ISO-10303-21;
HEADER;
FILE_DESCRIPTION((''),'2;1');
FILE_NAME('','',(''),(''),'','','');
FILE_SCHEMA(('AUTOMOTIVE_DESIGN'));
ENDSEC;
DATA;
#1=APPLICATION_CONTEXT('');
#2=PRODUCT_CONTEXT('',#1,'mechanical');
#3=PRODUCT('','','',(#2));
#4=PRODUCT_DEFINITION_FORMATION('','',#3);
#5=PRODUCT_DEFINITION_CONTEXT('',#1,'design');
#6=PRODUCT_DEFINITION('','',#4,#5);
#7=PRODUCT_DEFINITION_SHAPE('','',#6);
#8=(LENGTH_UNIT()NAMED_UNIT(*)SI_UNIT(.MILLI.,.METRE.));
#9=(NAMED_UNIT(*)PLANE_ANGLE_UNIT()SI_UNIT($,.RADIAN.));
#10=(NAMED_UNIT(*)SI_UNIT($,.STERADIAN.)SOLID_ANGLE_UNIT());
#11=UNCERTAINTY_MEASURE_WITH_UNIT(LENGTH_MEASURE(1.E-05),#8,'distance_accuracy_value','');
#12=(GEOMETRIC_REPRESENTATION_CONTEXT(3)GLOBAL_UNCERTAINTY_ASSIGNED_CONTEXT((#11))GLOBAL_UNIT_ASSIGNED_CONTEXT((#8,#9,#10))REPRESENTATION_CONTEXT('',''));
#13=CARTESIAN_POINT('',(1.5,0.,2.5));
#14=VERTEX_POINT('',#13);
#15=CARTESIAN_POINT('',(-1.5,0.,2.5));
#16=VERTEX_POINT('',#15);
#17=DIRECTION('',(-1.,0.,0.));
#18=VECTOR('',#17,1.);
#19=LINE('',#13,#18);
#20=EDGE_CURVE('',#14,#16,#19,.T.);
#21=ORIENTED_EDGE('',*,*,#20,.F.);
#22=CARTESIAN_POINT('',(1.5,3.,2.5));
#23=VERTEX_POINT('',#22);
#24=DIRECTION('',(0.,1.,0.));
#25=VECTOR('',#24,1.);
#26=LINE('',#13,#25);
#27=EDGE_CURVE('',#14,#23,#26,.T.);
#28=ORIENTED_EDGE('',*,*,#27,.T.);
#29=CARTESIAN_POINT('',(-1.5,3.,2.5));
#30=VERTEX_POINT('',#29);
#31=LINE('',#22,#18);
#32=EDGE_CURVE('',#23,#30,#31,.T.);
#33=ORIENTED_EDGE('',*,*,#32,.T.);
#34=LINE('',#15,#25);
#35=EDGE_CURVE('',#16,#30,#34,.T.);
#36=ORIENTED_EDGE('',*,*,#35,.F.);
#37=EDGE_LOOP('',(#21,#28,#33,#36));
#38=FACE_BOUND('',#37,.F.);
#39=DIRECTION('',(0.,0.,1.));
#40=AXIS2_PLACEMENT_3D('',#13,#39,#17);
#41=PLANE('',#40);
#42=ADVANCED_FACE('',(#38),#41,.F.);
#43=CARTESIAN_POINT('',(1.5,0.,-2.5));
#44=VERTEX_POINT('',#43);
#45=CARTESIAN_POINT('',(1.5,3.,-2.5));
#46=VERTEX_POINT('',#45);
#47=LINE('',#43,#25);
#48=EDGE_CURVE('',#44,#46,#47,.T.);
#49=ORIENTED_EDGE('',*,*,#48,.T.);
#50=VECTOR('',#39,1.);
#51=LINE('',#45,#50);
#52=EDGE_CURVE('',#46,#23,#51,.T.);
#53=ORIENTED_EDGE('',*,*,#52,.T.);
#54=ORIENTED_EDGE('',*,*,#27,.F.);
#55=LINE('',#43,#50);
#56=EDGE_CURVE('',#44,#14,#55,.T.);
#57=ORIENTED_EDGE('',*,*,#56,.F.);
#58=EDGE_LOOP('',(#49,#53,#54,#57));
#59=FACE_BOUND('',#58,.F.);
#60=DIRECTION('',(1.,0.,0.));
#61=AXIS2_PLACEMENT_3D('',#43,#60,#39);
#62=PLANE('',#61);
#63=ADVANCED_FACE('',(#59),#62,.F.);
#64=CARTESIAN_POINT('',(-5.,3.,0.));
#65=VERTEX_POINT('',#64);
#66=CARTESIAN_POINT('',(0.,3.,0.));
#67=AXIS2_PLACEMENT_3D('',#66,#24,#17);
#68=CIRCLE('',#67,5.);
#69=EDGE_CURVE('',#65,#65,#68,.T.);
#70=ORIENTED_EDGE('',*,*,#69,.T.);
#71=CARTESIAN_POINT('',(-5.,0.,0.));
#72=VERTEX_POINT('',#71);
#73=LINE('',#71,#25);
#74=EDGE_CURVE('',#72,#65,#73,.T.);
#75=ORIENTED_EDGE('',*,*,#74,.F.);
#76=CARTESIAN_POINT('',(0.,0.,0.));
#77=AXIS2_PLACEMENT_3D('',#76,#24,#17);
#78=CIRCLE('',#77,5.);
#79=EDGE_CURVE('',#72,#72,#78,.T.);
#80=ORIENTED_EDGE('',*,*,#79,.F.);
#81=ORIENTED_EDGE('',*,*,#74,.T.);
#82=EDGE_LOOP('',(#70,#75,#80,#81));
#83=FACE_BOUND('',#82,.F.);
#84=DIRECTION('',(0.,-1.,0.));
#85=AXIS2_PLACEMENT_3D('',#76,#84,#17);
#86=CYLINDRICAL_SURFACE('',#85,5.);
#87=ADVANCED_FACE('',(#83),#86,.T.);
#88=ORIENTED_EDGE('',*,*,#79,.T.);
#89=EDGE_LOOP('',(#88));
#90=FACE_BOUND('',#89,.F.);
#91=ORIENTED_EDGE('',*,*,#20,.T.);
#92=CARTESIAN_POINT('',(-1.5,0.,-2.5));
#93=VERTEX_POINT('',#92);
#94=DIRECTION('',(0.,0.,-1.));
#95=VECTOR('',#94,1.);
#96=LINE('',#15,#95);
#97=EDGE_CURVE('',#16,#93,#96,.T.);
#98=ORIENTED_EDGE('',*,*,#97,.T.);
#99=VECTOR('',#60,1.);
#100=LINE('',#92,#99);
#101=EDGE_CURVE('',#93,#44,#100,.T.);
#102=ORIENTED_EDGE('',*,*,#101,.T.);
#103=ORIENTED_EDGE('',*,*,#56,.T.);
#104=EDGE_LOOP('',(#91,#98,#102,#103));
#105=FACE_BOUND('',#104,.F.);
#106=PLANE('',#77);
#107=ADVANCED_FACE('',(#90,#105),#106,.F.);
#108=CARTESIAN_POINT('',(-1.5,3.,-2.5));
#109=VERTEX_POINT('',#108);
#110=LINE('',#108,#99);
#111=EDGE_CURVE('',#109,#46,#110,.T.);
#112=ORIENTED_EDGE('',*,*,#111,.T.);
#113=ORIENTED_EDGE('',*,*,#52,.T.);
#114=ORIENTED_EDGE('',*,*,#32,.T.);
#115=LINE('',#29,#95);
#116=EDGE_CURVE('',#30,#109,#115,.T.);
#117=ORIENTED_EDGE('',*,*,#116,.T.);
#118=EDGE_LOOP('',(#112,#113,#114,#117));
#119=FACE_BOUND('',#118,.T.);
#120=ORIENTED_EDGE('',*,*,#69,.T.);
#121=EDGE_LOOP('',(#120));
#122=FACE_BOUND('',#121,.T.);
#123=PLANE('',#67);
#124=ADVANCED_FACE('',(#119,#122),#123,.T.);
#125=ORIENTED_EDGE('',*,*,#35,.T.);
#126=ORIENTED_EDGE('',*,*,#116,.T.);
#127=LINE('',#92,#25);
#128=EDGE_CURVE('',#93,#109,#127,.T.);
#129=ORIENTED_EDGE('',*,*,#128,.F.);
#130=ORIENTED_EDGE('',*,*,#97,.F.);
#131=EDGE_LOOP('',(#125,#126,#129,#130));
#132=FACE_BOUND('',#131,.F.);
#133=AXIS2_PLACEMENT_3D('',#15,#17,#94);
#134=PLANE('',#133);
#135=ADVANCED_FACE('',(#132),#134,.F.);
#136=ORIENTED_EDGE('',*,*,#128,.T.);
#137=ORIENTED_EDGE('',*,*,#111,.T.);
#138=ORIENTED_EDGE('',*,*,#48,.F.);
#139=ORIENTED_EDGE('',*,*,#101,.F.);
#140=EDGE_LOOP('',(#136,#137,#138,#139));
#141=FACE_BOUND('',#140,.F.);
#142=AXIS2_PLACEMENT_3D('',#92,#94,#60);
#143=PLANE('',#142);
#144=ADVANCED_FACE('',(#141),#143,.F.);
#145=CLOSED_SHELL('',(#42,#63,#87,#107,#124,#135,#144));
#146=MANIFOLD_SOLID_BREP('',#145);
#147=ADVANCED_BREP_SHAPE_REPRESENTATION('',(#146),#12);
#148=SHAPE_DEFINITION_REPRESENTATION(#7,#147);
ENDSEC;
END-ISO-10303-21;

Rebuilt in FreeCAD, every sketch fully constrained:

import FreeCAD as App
import Part
import Sketcher
Q = App.Units.Quantity

doc = App.newDocument("Part")
params = doc.addObject("Spreadsheet::Sheet", "Params")
for row, (alias, value) in enumerate([
    ("sketch1_diameter", "10 mm"),
    ("sketch1_width", "3 mm"),
    ("sketch1_height", "5 mm"),
    ("pad1_length", "3 mm"),
], start=1):
    params.set(f"A{row}", alias)
    params.set(f"B{row}", "=" + value)
    params.setAlias(f"B{row}", alias)

body = doc.addObject("PartDesign::Body", "Body")

# Sketch on XZ plane
sketch1 = body.newObject("Sketcher::SketchObject", "Sketch")
sketch1.AttachmentSupport = (doc.getObject("XZ_Plane"), [""])
sketch1.MapMode = "FlatFace"
sketch1.addGeometry([
    Part.Circle(App.Vector(0, 0, 0), App.Vector(0, 0, 1), 5),  # 0
    Part.LineSegment(App.Vector(-1.5, 2.5, 0), App.Vector(-1.5, -2.5, 0)),  # 1
    Part.LineSegment(App.Vector(-1.5, -2.5, 0), App.Vector(1.5, -2.5, 0)),  # 2
    Part.LineSegment(App.Vector(1.5, -2.5, 0), App.Vector(1.5, 2.5, 0)),  # 3
    Part.LineSegment(App.Vector(1.5, 2.5, 0), App.Vector(-1.5, 2.5, 0)),  # 4
], False)
sketch1.addConstraint([
    Sketcher.Constraint("Coincident", 1, 2, 2, 1),
    Sketcher.Constraint("Coincident", 2, 2, 3, 1),
    Sketcher.Constraint("Coincident", 3, 2, 4, 1),
    Sketcher.Constraint("Coincident", 4, 2, 1, 1),
    Sketcher.Constraint("Vertical", 1),
    Sketcher.Constraint("Horizontal", 2),
    Sketcher.Constraint("Vertical", 3),
    Sketcher.Constraint("Horizontal", 4),
    Sketcher.Constraint("Coincident", 0, 3, -1, 1),
    Sketcher.Constraint("Symmetric", 1, 2, 3, 2, -1, 1),
    Sketcher.Constraint("Diameter", 0, Q("10 mm")),
    Sketcher.Constraint("DistanceX", 2, 1, 2, 2, Q("3 mm")),
    Sketcher.Constraint("DistanceY", 1, 2, 1, 1, Q("5 mm")),
])
sketch1.setExpression("Constraints[10]", "Params.sketch1_diameter")
sketch1.setExpression("Constraints[11]", "Params.sketch1_width")
sketch1.setExpression("Constraints[12]", "Params.sketch1_height")
pad1 = body.newObject("PartDesign::Pad", "Pad")
pad1.Profile = sketch1
pad1.setExpression("Length", "Params.pad1_length")
pad1.Reversed = True

doc.recompute()
